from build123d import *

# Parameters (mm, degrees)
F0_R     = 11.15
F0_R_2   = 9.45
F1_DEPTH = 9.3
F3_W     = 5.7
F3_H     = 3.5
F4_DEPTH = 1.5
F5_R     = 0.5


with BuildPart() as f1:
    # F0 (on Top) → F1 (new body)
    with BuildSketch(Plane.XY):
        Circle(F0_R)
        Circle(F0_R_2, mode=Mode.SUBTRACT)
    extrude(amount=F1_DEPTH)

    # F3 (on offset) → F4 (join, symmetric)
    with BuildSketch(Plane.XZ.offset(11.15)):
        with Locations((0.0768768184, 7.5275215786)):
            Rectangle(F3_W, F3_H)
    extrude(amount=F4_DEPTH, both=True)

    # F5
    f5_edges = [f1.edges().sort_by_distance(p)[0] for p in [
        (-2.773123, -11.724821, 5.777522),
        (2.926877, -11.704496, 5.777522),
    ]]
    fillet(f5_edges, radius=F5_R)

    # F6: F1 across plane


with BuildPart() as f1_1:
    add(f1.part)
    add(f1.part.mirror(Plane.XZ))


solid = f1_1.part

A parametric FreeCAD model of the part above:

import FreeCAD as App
import Part
import Sketcher
from FreeCAD import Vector
Q = App.Units.Quantity


def edges_at(feature, points):
    """Names of the edges that pass closest to the given points."""
    edges = feature.Shape.Edges
    near = lambda p: min(range(len(edges)), key=lambda i: edges[i].distToShape(Part.Vertex(*p))[0])
    return sorted({f"Edge{near(p) + 1}" for p in points})


def add_polygon(sketch, points):
    """Adds a closed chain of lines whose ends are joined by coincident constraints."""
    first, n = sketch.GeometryCount, len(points)
    for a, b in zip(points, points[1:] + points[:1]):
        sketch.addGeometry(Part.LineSegment(App.Vector(*a, 0), App.Vector(*b, 0)), False)
    for i in range(n):
        sketch.addConstraint(Sketcher.Constraint("Coincident", first + i, 2, first + (i + 1) % n, 1))

doc = App.newDocument("Part")
body = doc.addObject("PartDesign::Body", "Body")

sketch1 = doc.addObject("Sketcher::SketchObject", "Sketch")
body.addObject(sketch1)
sketch1.AttachmentSupport = (doc.XY_Plane, [""])
sketch1.MapMode = "FlatFace"
sketch1.addGeometry(Part.Circle(Vector(0, 0, 0), Vector(0, 0, 1), 11), False)
sketch1.addGeometry(Part.Circle(Vector(0, 0, 0), Vector(0, 0, 1), 9), False)
sketch1.addConstraint(Sketcher.Constraint("Coincident", 0, 3, -1, 1))
sketch1.addConstraint(Sketcher.Constraint("Coincident", 1, 3, -1, 1))
sketch1.addConstraint(Sketcher.Constraint("Diameter", 0, Q("22.3 mm")))
sketch1.addConstraint(Sketcher.Constraint("Diameter", 1, Q("18.9 mm")))
pad1 = doc.addObject("PartDesign::Pad", "Pad")
body.addObject(pad1)
pad1.Profile = sketch1
pad1.Length = 9.3

sketch2 = doc.addObject("Sketcher::SketchObject", "Sketch001")
body.addObject(sketch2)
sketch2.AttachmentSupport = (doc.XZ_Plane, [""])
sketch2.MapMode = "FlatFace"
sketch2.AttachmentOffset = App.Placement(Vector(0, 0, 11.15), App.Rotation())
add_polygon(sketch2, [(-2.8, 9.3), (-2.8, 5.8), (2.9, 5.8), (2.9, 9.3)])
sketch2.addConstraint(Sketcher.Constraint("Vertical", 0))
sketch2.addConstraint(Sketcher.Constraint("Horizontal", 1))
sketch2.addConstraint(Sketcher.Constraint("Vertical", 2))
sketch2.addConstraint(Sketcher.Constraint("Horizontal", 3))
sketch2.addConstraint(Sketcher.Constraint("DistanceX", 1, 1, 1, 2, Q("5.7 mm")))
sketch2.addConstraint(Sketcher.Constraint("DistanceY", 0, 2, 0, 1, Q("3.5 mm")))
sketch2.addConstraint(Sketcher.Constraint("DistanceY", -1, 1, 0, 2, Q("5.777522 mm")))
sketch2.addConstraint(Sketcher.Constraint("DistanceX", 0, 2, -1, 1, Q("2.773123 mm")))
pad2 = doc.addObject("PartDesign::Pad", "Pad001")
body.addObject(pad2)
pad2.Profile = sketch2
pad2.Length = 3
pad2.Midplane = True
doc.recompute()

fillet = doc.addObject("PartDesign::Fillet", "Fillet")
body.addObject(fillet)
fillet.Base = (pad2, edges_at(pad2, [(-2.773, -11.725, 5.778), (2.927, -11.704, 5.778)]))
fillet.Radius = 0.5
body2 = doc.addObject("PartDesign::Body", "Body001")
doc.recompute()

body2.BaseFeature = body
doc.recompute()

mirroring = doc.addObject("Part::Mirroring", "Mirroring")
mirroring.Source = body
mirroring.Base = Vector(0, 0, 0)
mirroring.Normal = Vector(0, -1, 0)
body3 = doc.addObject("PartDesign::Body", "Body002")
body3.BaseFeature = mirroring
boolean = doc.addObject("PartDesign::Boolean", "Boolean")
body2.addObject(boolean)
boolean.Type = "Fuse"
boolean.addObjects([body3])
doc.recompute()
mirroring.Visibility = False

doc.recompute()
